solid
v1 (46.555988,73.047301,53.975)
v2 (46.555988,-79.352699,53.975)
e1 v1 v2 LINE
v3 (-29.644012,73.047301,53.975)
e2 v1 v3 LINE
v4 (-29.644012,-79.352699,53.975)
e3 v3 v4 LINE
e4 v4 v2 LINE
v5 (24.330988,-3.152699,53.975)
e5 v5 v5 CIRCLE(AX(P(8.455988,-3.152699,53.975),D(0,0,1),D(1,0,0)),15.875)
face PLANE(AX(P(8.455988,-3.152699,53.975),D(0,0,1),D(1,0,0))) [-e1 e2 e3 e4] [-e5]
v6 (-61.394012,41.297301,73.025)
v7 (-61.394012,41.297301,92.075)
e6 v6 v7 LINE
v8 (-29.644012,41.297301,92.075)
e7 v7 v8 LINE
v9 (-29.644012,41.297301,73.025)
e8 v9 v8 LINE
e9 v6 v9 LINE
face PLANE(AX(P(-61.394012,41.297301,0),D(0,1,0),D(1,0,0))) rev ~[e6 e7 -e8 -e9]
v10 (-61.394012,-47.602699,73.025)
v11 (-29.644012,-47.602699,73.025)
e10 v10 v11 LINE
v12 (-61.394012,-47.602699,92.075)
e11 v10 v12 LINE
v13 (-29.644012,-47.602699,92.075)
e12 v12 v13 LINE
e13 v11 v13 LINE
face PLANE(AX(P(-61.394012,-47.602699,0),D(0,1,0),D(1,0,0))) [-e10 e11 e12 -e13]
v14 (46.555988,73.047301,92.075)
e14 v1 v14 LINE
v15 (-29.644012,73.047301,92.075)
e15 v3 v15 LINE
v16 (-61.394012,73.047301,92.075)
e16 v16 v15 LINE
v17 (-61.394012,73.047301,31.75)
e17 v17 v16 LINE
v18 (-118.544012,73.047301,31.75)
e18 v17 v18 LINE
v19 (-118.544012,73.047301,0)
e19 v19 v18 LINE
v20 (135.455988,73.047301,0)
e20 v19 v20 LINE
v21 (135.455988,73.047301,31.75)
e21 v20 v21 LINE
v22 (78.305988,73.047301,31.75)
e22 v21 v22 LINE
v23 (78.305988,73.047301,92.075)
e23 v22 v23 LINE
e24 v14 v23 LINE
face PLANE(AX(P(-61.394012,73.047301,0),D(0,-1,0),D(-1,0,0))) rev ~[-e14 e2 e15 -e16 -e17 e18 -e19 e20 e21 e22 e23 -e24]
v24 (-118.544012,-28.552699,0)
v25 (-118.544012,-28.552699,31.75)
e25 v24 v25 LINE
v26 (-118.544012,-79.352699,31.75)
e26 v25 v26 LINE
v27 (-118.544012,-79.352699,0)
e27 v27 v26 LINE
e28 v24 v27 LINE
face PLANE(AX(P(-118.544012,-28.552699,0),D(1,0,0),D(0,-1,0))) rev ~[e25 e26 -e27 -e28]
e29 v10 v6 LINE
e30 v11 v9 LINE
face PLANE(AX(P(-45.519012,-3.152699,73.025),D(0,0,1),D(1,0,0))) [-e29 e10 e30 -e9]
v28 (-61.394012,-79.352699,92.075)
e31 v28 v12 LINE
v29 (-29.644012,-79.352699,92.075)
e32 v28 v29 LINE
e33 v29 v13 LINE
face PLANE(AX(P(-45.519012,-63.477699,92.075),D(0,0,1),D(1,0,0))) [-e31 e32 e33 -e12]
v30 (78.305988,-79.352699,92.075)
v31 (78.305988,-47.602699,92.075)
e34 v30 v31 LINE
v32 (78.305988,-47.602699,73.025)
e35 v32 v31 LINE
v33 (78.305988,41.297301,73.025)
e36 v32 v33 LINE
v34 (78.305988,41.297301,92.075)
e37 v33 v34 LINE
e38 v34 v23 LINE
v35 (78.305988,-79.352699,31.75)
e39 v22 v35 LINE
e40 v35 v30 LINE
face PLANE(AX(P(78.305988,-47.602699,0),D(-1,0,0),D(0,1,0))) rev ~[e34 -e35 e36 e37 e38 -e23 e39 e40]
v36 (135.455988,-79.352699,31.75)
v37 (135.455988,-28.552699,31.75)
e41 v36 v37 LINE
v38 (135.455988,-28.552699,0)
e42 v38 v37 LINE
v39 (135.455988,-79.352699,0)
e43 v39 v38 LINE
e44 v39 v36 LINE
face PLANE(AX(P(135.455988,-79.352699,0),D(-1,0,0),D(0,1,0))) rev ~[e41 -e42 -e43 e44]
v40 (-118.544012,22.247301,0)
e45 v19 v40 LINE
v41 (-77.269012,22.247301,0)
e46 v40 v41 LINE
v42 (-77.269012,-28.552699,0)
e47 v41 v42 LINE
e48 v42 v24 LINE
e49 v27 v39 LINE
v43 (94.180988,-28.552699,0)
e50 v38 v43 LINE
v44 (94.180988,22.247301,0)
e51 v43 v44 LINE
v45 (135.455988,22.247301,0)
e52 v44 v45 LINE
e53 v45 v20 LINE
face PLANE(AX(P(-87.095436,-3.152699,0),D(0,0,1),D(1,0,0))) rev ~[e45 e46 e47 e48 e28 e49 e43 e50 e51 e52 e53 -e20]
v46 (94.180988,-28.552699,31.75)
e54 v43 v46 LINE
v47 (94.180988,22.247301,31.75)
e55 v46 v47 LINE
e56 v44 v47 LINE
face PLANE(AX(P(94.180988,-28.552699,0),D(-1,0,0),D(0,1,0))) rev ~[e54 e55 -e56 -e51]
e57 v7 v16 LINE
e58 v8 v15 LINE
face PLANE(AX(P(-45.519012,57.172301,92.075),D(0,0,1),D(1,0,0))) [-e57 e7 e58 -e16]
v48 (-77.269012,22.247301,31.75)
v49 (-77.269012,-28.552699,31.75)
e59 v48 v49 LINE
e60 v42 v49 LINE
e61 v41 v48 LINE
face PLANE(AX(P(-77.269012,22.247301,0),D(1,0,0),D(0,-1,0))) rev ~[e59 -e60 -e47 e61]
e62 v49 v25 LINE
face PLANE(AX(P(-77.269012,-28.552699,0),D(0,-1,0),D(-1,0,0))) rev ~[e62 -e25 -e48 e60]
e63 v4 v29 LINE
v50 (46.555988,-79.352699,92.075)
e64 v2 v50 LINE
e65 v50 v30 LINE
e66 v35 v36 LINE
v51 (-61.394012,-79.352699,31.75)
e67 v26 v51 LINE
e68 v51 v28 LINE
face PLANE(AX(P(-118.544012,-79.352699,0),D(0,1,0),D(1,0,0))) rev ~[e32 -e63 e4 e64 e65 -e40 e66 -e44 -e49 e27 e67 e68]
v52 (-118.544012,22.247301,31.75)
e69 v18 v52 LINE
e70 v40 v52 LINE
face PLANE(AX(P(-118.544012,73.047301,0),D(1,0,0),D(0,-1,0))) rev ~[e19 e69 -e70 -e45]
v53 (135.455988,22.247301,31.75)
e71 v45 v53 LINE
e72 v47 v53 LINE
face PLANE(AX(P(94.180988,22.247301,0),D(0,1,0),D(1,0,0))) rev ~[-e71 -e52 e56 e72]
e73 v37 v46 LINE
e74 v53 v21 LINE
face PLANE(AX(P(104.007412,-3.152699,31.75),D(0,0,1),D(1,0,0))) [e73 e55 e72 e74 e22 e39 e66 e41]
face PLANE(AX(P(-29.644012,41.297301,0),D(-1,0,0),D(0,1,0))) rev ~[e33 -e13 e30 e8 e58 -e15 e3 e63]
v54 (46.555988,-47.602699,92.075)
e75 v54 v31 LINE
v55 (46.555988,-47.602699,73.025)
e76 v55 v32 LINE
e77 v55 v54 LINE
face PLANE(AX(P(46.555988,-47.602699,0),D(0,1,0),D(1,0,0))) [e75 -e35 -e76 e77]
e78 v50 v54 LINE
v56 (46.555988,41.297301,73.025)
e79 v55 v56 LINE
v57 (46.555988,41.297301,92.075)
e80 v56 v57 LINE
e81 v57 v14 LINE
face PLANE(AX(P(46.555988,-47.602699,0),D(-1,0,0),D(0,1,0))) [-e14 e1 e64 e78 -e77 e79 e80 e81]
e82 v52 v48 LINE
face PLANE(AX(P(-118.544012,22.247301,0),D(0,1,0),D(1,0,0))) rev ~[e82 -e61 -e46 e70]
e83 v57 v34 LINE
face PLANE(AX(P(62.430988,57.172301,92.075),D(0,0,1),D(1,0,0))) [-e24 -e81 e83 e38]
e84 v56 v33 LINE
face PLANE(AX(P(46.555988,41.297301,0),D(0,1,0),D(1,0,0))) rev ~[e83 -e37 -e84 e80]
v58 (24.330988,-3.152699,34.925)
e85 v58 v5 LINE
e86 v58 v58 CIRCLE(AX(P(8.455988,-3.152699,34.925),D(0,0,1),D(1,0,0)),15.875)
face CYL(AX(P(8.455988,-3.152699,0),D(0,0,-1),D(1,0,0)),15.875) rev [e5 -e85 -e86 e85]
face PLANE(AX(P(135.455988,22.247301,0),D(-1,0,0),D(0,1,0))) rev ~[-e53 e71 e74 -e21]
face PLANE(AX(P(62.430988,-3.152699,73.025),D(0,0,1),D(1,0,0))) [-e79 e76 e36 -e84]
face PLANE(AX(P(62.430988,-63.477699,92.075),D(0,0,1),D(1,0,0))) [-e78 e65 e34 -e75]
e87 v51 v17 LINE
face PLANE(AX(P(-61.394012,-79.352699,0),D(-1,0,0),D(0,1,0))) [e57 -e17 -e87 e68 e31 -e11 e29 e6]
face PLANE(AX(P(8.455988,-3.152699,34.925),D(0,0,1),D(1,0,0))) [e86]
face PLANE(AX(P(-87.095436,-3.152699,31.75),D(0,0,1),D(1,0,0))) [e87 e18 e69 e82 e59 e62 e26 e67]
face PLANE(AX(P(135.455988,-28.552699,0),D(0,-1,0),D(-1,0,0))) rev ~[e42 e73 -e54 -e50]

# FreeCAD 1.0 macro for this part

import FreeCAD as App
import Part
import Sketcher
from FreeCAD import Vector
Q = App.Units.Quantity

doc = App.newDocument("Part")
params = doc.addObject("Spreadsheet::Sheet", "Params")
for row, (alias, value) in enumerate([
    ("sketch1_width", "1.25 in"),
    ("pad1_length", "3.625 in"),
    ("sketch2_diameter", "1.25 in"),
    ("sketch2_width", "3 in"),
    ("sketch2_height", "6 in"),
    ("pad2_length", "2.125 in"),
    ("sketch3_diameter", "1.25 in"),
    ("pad3_length", "1.375 in"),
    ("sketch4_height", "3.5 in"),
    ("sketch4_width", "1.25 in"),
    ("pad4_length", "2.875 in"),
    ("sketch5_height", "2 in"),
    ("sketch5_width", "2.25 in"),
    ("sketch5_width2", "1.625 in"),
    ("pad5_length", "1.25 in"),
], start=1):
    params.set(f"A{row}", alias)
    params.set(f"B{row}", "=" + value)
    params.setAlias(f"B{row}", alias)

body = doc.addObject("PartDesign::Body", "Body")
body.AllowCompound = True

# Sketch on XY plane
sketch1 = body.newObject("Sketcher::SketchObject", "Sketch")
sketch1.AttachmentSupport = (doc.getObject("XY_Plane"), [""])
sketch1.MapMode = "FlatFace"
sketch1.addGeometry([
    Part.LineSegment(Vector(-61.394012, 73.047301, 0), Vector(-61.394012, 41.297301, 0)),  # 0
    Part.LineSegment(Vector(-61.394012, 41.297301, 0), Vector(-29.644012, 41.297301, 0)),  # 1
    Part.LineSegment(Vector(-29.644012, 41.297301, 0), Vector(-29.644012, 73.047301, 0)),  # 2
    Part.LineSegment(Vector(-29.644012, 73.047301, 0), Vector(-61.394012, 73.047301, 0)),  # 3
    Part.LineSegment(Vector(-61.394012, -47.602699, 0), Vector(-61.394012, -79.352699, 0)),  # 4
    Part.LineSegment(Vector(-61.394012, -79.352699, 0), Vector(-29.644012, -79.352699, 0)),  # 5
    Part.LineSegment(Vector(-29.644012, -79.352699, 0), Vector(-29.644012, -47.602699, 0)),  # 6
    Part.LineSegment(Vector(-29.644012, -47.602699, 0), Vector(-61.394012, -47.602699, 0)),  # 7
    Part.LineSegment(Vector(46.555988, 73.047301, 0), Vector(46.555988, 41.297301, 0)),  # 8
    Part.LineSegment(Vector(46.555988, 41.297301, 0), Vector(78.305988, 41.297301, 0)),  # 9
    Part.LineSegment(Vector(78.305988, 41.297301, 0), Vector(78.305988, 73.047301, 0)),  # 10
    Part.LineSegment(Vector(78.305988, 73.047301, 0), Vector(46.555988, 73.047301, 0)),  # 11
    Part.LineSegment(Vector(46.555988, -47.602699, 0), Vector(46.555988, -79.352699, 0)),  # 12
    Part.LineSegment(Vector(46.555988, -79.352699, 0), Vector(78.305988, -79.352699, 0)),  # 13
    Part.LineSegment(Vector(78.305988, -79.352699, 0), Vector(78.305988, -47.602699, 0)),  # 14
    Part.LineSegment(Vector(78.305988, -47.602699, 0), Vector(46.555988, -47.602699, 0)),  # 15
], False)
sketch1.addConstraint([
    Sketcher.Constraint("Coincident", 0, 2, 1, 1),
    Sketcher.Constraint("Coincident", 1, 2, 2, 1),
    Sketcher.Constraint("Coincident", 2, 2, 3, 1),
    Sketcher.Constraint("Coincident", 3, 2, 0, 1),
    Sketcher.Constraint("Coincident", 4, 2, 5, 1),
    Sketcher.Constraint("Coincident", 5, 2, 6, 1),
    Sketcher.Constraint("Coincident", 6, 2, 7, 1),
    Sketcher.Constraint("Coincident", 7, 2, 4, 1),
    Sketcher.Constraint("Coincident", 8, 2, 9, 1),
    Sketcher.Constraint("Coincident", 9, 2, 10, 1),
    Sketcher.Constraint("Coincident", 10, 2, 11, 1),
    Sketcher.Constraint("Coincident", 11, 2, 8, 1),
    Sketcher.Constraint("Coincident", 12, 2, 13, 1),
    Sketcher.Constraint("Coincident", 13, 2, 14, 1),
    Sketcher.Constraint("Coincident", 14, 2, 15, 1),
    Sketcher.Constraint("Coincident", 15, 2, 12, 1),
    Sketcher.Constraint("Vertical", 0),
    Sketcher.Constraint("Horizontal", 1),
    Sketcher.Constraint("Vertical", 2),
    Sketcher.Constraint("Horizontal", 3),
    Sketcher.Constraint("Vertical", 4),
    Sketcher.Constraint("Horizontal", 5),
    Sketcher.Constraint("Vertical", 6),
    Sketcher.Constraint("Horizontal", 7),
    Sketcher.Constraint("Vertical", 8),
    Sketcher.Constraint("Horizontal", 9),
    Sketcher.Constraint("Vertical", 10),
    Sketcher.Constraint("Horizontal", 11),
    Sketcher.Constraint("Vertical", 12),
    Sketcher.Constraint("Horizontal", 13),
    Sketcher.Constraint("Vertical", 14),
    Sketcher.Constraint("Horizontal", 15),
    Sketcher.Constraint("Horizontal", 1, 2, 8, 2),
    Sketcher.Constraint("Horizontal", 3, 2, 10, 2),
    Sketcher.Constraint("Horizontal", 5, 2, 12, 2),
    Sketcher.Constraint("Horizontal", 7, 2, 14, 2),
    Sketcher.Constraint("Vertical", 3, 2, 4, 2),
    Sketcher.Constraint("Vertical", 2, 2, 5, 2),
    Sketcher.Constraint("Vertical", 11, 2, 12, 2),
    Sketcher.Constraint("Vertical", 10, 2, 13, 2),
    Sketcher.Constraint("Equal", 7, 9),
    Sketcher.Constraint("Equal", 15, 0),
    Sketcher.Constraint("Equal", 2, 4),
    Sketcher.Constraint("DistanceY", 4, 2, 3, 2, Q("6 in")),
    Sketcher.Constraint("DistanceX", 1, 2, 8, 2, Q("3 in")),
    Sketcher.Constraint("DistanceX", 1, 1, 1, 2, Q("1.25 in")),
    Sketcher.Constraint("DistanceY", -1, 1, 0, 2, 41.297301),
    Sketcher.Constraint("DistanceX", 0, 2, -1, 1, 61.394012),
])
sketch1.setExpression("Constraints[45]", "Params.sketch1_width")
pad1 = body.newObject("PartDesign::Pad", "Pad")
pad1.Profile = sketch1
pad1.setExpression("Length", "Params.pad1_length")

# Sketch on XY plane
sketch2 = body.newObject("Sketcher::SketchObject", "Sketch001")
sketch2.AttachmentSupport = (doc.getObject("XY_Plane"), [""])
sketch2.MapMode = "FlatFace"
sketch2.addGeometry([
    Part.LineSegment(Vector(-29.644012, -79.352699, 0), Vector(46.555988, -79.352699, 0)),  # 0
    Part.LineSegment(Vector(46.555988, -79.352699, 0), Vector(46.555988, 73.047301, 0)),  # 1
    Part.LineSegment(Vector(46.555988, 73.047301, 0), Vector(-29.644012, 73.047301, 0)),  # 2
    Part.LineSegment(Vector(-29.644012, 73.047301, 0), Vector(-29.644012, -79.352699, 0)),  # 3
    Part.Circle(Vector(8.455988, -3.152699, 0), Vector(0, 0, 1), 15.875),  # 4
], False)
sketch2.addConstraint([
    Sketcher.Constraint("Coincident", 0, 2, 1, 1),
    Sketcher.Constraint("Coincident", 1, 2, 2, 1),
    Sketcher.Constraint("Coincident", 2, 2, 3, 1),
    Sketcher.Constraint("Coincident", 3, 2, 0, 1),
    Sketcher.Constraint("Horizontal", 0),
    Sketcher.Constraint("Vertical", 1),
    Sketcher.Constraint("Horizontal", 2),
    Sketcher.Constraint("Vertical", 3),
    Sketcher.Constraint("Diameter", 4, Q("1.25 in")),
    Sketcher.Constraint("DistanceX", 0, 1, 0, 2, Q("3 in")),
    Sketcher.Constraint("DistanceY", 1, 1, 1, 2, Q("6 in")),
    Sketcher.Constraint("DistanceY", 0, 2, 4, 3, Q("3 in")),
    Sketcher.Constraint("DistanceX", 4, 3, 0, 2, Q("1.5 in")),
    Sketcher.Constraint("DistanceY", 4, 3, -1, 1, 3.152699),
    Sketcher.Constraint("DistanceX", 2, 2, -1, 1, 29.644012),
])
sketch2.setExpression("Constraints[8]", "Params.sketch2_diameter")
sketch2.setExpression("Constraints[9]", "Params.sketch2_width")
sketch2.setExpression("Constraints[10]", "Params.sketch2_height")
pad2 = body.newObject("PartDesign::Pad", "Pad001")
pad2.Profile = sketch2
pad2.setExpression("Length", "Params.pad2_length")

# Sketch on XY plane
sketch3 = body.newObject("Sketcher::SketchObject", "Sketch002")
sketch3.AttachmentSupport = (doc.getObject("XY_Plane"), [""])
sketch3.MapMode = "FlatFace"
sketch3.addGeometry(Part.Circle(Vector(8.455988, -3.152699, 0), Vector(0, 0, 1), 15.875), False)
sketch3.addConstraint([
    Sketcher.Constraint("Diameter", 0, Q("1.25 in")),
    Sketcher.Constraint("DistanceY", 0, 3, -1, 1, 3.152699),
    Sketcher.Constraint("DistanceX", -1, 1, 0, 3, 8.455988),
])
sketch3.setExpression("Constraints[0]", "Params.sketch3_diameter")
pad3 = body.newObject("PartDesign::Pad", "Pad002")
pad3.Profile = sketch3
pad3.setExpression("Length", "Params.pad3_length")
body2 = doc.addObject("PartDesign::Body", "Body001")
body2.AllowCompound = True

# Sketch on XY plane
sketch4 = body2.newObject("Sketcher::SketchObject", "Sketch003")
sketch4.AttachmentSupport = (doc.getObject("XY_Plane001"), [""])
sketch4.MapMode = "FlatFace"
sketch4.addGeometry([
    Part.LineSegment(Vector(-61.394012, 41.297301, 0), Vector(-61.394012, -47.602699, 0)),  # 0
    Part.LineSegment(Vector(-61.394012, -47.602699, 0), Vector(-29.644012, -47.602699, 0)),  # 1
    Part.LineSegment(Vector(-29.644012, -47.602699, 0), Vector(-29.644012, 41.297301, 0)),  # 2
    Part.LineSegment(Vector(-29.644012, 41.297301, 0), Vector(-61.394012, 41.297301, 0)),  # 3
    Part.LineSegment(Vector(46.555988, 41.297301, 0), Vector(46.555988, -47.602699, 0)),  # 4
    Part.LineSegment(Vector(46.555988, -47.602699, 0), Vector(78.305988, -47.602699, 0)),  # 5
    Part.LineSegment(Vector(78.305988, -47.602699, 0), Vector(78.305988, 41.297301, 0)),  # 6
    Part.LineSegment(Vector(78.305988, 41.297301, 0), Vector(46.555988, 41.297301, 0)),  # 7
], False)
sketch4.addConstraint([
    Sketcher.Constraint("Coincident", 0, 2, 1, 1),
    Sketcher.Constraint("Coincident", 1, 2, 2, 1),
    Sketcher.Constraint("Coincident", 2, 2, 3, 1),
    Sketcher.Constraint("Coincident", 3, 2, 0, 1),
    Sketcher.Constraint("Coincident", 4, 2, 5, 1),
    Sketcher.Constraint("Coincident", 5, 2, 6, 1),
    Sketcher.Constraint("Coincident", 6, 2, 7, 1),
    Sketcher.Constraint("Coincident", 7, 2, 4, 1),
    Sketcher.Constraint("Vertical", 0),
    Sketcher.Constraint("Horizontal", 1),
    Sketcher.Constraint("Vertical", 2),
    Sketcher.Constraint("Horizontal", 3),
    Sketcher.Constraint("Vertical", 4),
    Sketcher.Constraint("Horizontal", 5),
    Sketcher.Constraint("Vertical", 6),
    Sketcher.Constraint("Horizontal", 7),
    Sketcher.Constraint("Horizontal", 1, 2, 4, 2),
    Sketcher.Constraint("Horizontal", 3, 2, 6, 2),
    Sketcher.Constraint("Equal", 3, 5),
    Sketcher.Constraint("DistanceY", 0, 2, 0, 1, Q("3.5 in")),
    Sketcher.Constraint("DistanceX", 1, 2, 4, 2, Q("3 in")),
    Sketcher.Constraint("DistanceX", 1, 1, 1, 2, Q("1.25 in")),
    Sketcher.Constraint("DistanceY", 0, 2, -1, 1, 47.602699),
    Sketcher.Constraint("DistanceX", 0, 2, -1, 1, 61.394012),
])
sketch4.setExpression("Constraints[19]", "Params.sketch4_height")
sketch4.setExpression("Constraints[21]", "Params.sketch4_width")
pad4 = body2.newObject("PartDesign::Pad", "Pad003")
pad4.Profile = sketch4
pad4.setExpression("Length", "Params.pad4_length")
doc.recompute()

boolean = body.newObject("PartDesign::Boolean", "Boolean")
boolean.Type = "Fuse"
boolean.addObjects([body2])

# Sketch on XY plane
sketch5 = body.newObject("Sketcher::SketchObject", "Sketch004")
sketch5.AttachmentSupport = (doc.getObject("XY_Plane"), [""])
sketch5.MapMode = "FlatFace"
sketch5.addGeometry([
    Part.LineSegment(Vector(-118.544012, -28.552699, 0), Vector(-118.544012, -79.352699, 0)),  # 0
    Part.LineSegment(Vector(-118.544012, -79.352699, 0), Vector(-61.394012, -79.352699, 0)),  # 1
    Part.LineSegment(Vector(-61.394012, -79.352699, 0), Vector(-61.394012, 73.047301, 0)),  # 2
    Part.LineSegment(Vector(-61.394012, 73.047301, 0), Vector(-118.544012, 73.047301, 0)),  # 3
    Part.LineSegment(Vector(-118.544012, 73.047301, 0), Vector(-118.544012, 22.247301, 0)),  # 4
    Part.LineSegment(Vector(-118.544012, 22.247301, 0), Vector(-77.269012, 22.247301, 0)),  # 5
    Part.LineSegment(Vector(-77.269012, 22.247301, 0), Vector(-77.269012, -28.552699, 0)),  # 6
    Part.LineSegment(Vector(-77.269012, -28.552699, 0), Vector(-118.544012, -28.552699, 0)),  # 7
    Part.LineSegment(Vector(78.305988, -79.352699, 0), Vector(135.455988, -79.352699, 0)),  # 8
    Part.LineSegment(Vector(135.455988, -79.352699, 0), Vector(135.455988, -28.552699, 0)),  # 9
    Part.LineSegment(Vector(135.455988, -28.552699, 0), Vector(94.180988, -28.552699, 0)),  # 10
    Part.LineSegment(Vector(94.180988, -28.552699, 0), Vector(94.180988, 22.247301, 0)),  # 11
    Part.LineSegment(Vector(94.180988, 22.247301, 0), Vector(135.455988, 22.247301, 0)),  # 12
    Part.LineSegment(Vector(135.455988, 22.247301, 0), Vector(135.455988, 73.047301, 0)),  # 13
    Part.LineSegment(Vector(135.455988, 73.047301, 0), Vector(78.305988, 73.047301, 0)),  # 14
    Part.LineSegment(Vector(78.305988, 73.047301, 0), Vector(78.305988, -79.352699, 0)),  # 15
], False)
sketch5.addConstraint([
    Sketcher.Constraint("Coincident", 0, 2, 1, 1),
    Sketcher.Constraint("Coincident", 1, 2, 2, 1),
    Sketcher.Constraint("Coincident", 2, 2, 3, 1),
    Sketcher.Constraint("Coincident", 3, 2, 4, 1),
    Sketcher.Constraint("Coincident", 4, 2, 5, 1),
    Sketcher.Constraint("Coincident", 5, 2, 6, 1),
    Sketcher.Constraint("Coincident", 6, 2, 7, 1),
    Sketcher.Constraint("Coincident", 7, 2, 0, 1),
    Sketcher.Constraint("Coincident", 8, 2, 9, 1),
    Sketcher.Constraint("Coincident", 9, 2, 10, 1),
    Sketcher.Constraint("Coincident", 10, 2, 11, 1),
    Sketcher.Constraint("Coincident", 11, 2, 12, 1),
    Sketcher.Constraint("Coincident", 12, 2, 13, 1),
    Sketcher.Constraint("Coincident", 13, 2, 14, 1),
    Sketcher.Constraint("Coincident", 14, 2, 15, 1),
    Sketcher.Constraint("Coincident", 15, 2, 8, 1),
    Sketcher.Constraint("Vertical", 0),
    Sketcher.Constraint("Horizontal", 1),
    Sketcher.Constraint("Vertical", 2),
    Sketcher.Constraint("Horizontal", 3),
    Sketcher.Constraint("Vertical", 4),
    Sketcher.Constraint("Horizontal", 5),
    Sketcher.Constraint("Vertical", 6),
    Sketcher.Constraint("Horizontal", 7),
    Sketcher.Constraint("Horizontal", 8),
    Sketcher.Constraint("Vertical", 9),
    Sketcher.Constraint("Horizontal", 10),
    Sketcher.Constraint("Vertical", 11),
    Sketcher.Constraint("Horizontal", 12),
    Sketcher.Constraint("Vertical", 13),
    Sketcher.Constraint("Horizontal", 14),
    Sketcher.Constraint("Vertical", 15),
    Sketcher.Constraint("Horizontal", 1, 2, 8, 2),
    Sketcher.Constraint("Horizontal", 7, 2, 9, 2),
    Sketcher.Constraint("Horizontal", 5, 2, 11, 2),
    Sketcher.Constraint("Horizontal", 3, 2, 13, 2),
    Sketcher.Constraint("Vertical", 0, 2, 3, 2),
    Sketcher.Constraint("Vertical", 9, 2, 12, 2),
    Sketcher.Constraint("Equal", 3, 8),
    Sketcher.Constraint("Equal", 7, 10),
    Sketcher.Constraint("Equal", 0, 4),
    Sketcher.Constraint("Equal", 4, 6),
    Sketcher.Constraint("DistanceY", 0, 2, 0, 1, Q("2 in")),
    Sketcher.Constraint("DistanceX", 0, 2, 8, 2, Q("10 in")),
    Sketcher.Constraint("DistanceX", 1, 1, 1, 2, Q("2.25 in")),
    Sketcher.Constraint("DistanceX", 5, 1, 5, 2, Q("1.625 in")),
    Sketcher.Constraint("DistanceY", 0, 2, -1, 1, 79.352699),
    Sketcher.Constraint("DistanceX", 0, 2, -1, 1, 118.544012),
])
sketch5.setExpression("Constraints[42]", "Params.sketch5_height")
sketch5.setExpression("Constraints[44]", "Params.sketch5_width")
sketch5.setExpression("Constraints[45]", "Params.sketch5_width2")
pad5 = body.newObject("PartDesign::Pad", "Pad004")
pad5.Profile = sketch5
pad5.setExpression("Length", "Params.pad5_length")

doc.recompute()
